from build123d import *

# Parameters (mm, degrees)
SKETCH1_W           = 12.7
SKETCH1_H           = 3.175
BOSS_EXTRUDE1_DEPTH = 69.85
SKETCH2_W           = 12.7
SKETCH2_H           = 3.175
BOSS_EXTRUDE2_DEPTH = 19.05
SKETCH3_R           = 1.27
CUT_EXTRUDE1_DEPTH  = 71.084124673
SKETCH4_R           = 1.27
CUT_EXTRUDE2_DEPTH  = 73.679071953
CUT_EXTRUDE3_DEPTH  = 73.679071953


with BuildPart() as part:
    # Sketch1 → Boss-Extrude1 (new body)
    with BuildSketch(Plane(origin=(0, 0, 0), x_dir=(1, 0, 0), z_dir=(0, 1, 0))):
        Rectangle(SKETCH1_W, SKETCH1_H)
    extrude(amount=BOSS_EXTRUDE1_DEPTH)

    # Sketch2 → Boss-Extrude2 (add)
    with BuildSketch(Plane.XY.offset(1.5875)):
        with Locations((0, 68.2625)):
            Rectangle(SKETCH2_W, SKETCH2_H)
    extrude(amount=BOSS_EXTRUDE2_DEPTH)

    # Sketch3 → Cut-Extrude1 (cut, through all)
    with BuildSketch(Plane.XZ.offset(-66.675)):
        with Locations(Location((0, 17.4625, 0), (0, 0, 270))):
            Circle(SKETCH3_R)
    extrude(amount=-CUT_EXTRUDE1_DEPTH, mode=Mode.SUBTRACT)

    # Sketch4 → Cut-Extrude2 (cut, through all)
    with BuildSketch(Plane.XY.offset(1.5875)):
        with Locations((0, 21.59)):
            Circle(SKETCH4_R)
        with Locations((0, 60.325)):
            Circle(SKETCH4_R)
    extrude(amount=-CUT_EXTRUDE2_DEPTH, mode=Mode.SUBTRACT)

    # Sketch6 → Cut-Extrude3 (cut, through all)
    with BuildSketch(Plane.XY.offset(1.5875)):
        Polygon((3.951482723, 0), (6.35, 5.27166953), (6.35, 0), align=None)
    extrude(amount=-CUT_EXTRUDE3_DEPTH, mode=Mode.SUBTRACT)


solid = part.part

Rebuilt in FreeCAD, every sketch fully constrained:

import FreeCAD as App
import Part
import Sketcher

V = App.Vector
Q = App.Units.Quantity


def add_polygon(sketch, points):
    """Adds a closed chain of lines whose ends are joined by coincident constraints."""
    first, n = sketch.GeometryCount, len(points)
    for a, b in zip(points, points[1:] + points[:1]):
        sketch.addGeometry(Part.LineSegment(App.Vector(*a, 0), App.Vector(*b, 0)), False)
    for i in range(n):
        sketch.addConstraint(Sketcher.Constraint("Coincident", first + i, 2, first + (i + 1) % n, 1))

doc = App.newDocument("Part")
body = doc.addObject("PartDesign::Body", "Body")

# Sketch on XZ plane
sketch1 = body.newObject("Sketcher::SketchObject", "Sketch")
sketch1.AttachmentSupport = (doc.getObject("XZ_Plane"), [""])
sketch1.MapMode = "FlatFace"
add_polygon(sketch1, [(-6.3, -1.6), (-6.3, 1.6), (6.3, 1.6), (6.3, -1.6)])  # lines 0-3
sketch1.addConstraint([
    Sketcher.Constraint("Vertical", 0),
    Sketcher.Constraint("Horizontal", 1),
    Sketcher.Constraint("Vertical", 2),
    Sketcher.Constraint("Horizontal", 3),
    Sketcher.Constraint("Symmetric", 0, 2, 2, 2, -1, 1),
    Sketcher.Constraint("DistanceX", 1, 1, 1, 2, Q("0.5 in")),
    Sketcher.Constraint("DistanceY", 0, 1, 0, 2, Q("0.125 in")),
])
pad1 = body.newObject("PartDesign::Pad", "Pad")
pad1.Profile = sketch1
pad1.Length = Q("2.75 in")
pad1.Reversed = True

# Sketch on XY plane
sketch2 = body.newObject("Sketcher::SketchObject", "Sketch001")
sketch2.AttachmentSupport = (doc.getObject("XY_Plane"), [""])
sketch2.MapMode = "FlatFace"
sketch2.AttachmentOffset = App.Placement(V(0, 0, 0.0625 * 25.4), App.Rotation())
add_polygon(sketch2, [(-6.3, 69.8), (-6.3, 66.7), (6.3, 66.7), (6.3, 69.8)])  # lines 0-3
sketch2.addConstraint([
    Sketcher.Constraint("Vertical", 0),
    Sketcher.Constraint("Horizontal", 1),
    Sketcher.Constraint("Vertical", 2),
    Sketcher.Constraint("Horizontal", 3),
    Sketcher.Constraint("DistanceX", 1, 1, 1, 2, Q("0.5 in")),
    Sketcher.Constraint("DistanceY", 0, 2, 0, 1, Q("0.125 in")),
    Sketcher.Constraint("DistanceX", 0, 2, -1, 1, Q("0.25 in")),
    Sketcher.Constraint("DistanceY", -1, 1, 2, 2, Q("2.75 in")),
])
pad2 = body.newObject("PartDesign::Pad", "Pad001")
pad2.Profile = sketch2
pad2.Length = Q("0.75 in")

# Sketch on XZ plane
sketch3 = body.newObject("Sketcher::SketchObject", "Sketch002")
sketch3.AttachmentSupport = (doc.getObject("XZ_Plane"), [""])
sketch3.MapMode = "FlatFace"
sketch3.AttachmentOffset = App.Placement(V(0, 0, -2.625 * 25.4), App.Rotation())
sketch3.addGeometry(Part.Circle(V(0, 17.5, 0), V(0, 0, 1), 1.3), False)
sketch3.addConstraint([
    Sketcher.Constraint("PointOnObject", 0, 3, -2),
    Sketcher.Constraint("Diameter", 0, Q("0.1 in")),
    Sketcher.Constraint("DistanceY", -1, 1, 0, 3, Q("0.6875 in")),
])
pocket1 = body.newObject("PartDesign::Pocket", "Pocket")
pocket1.Profile = sketch3
pocket1.Type = "ThroughAll"

# Sketch on XY plane
sketch4 = body.newObject("Sketcher::SketchObject", "Sketch003")
sketch4.AttachmentSupport = (doc.getObject("XY_Plane"), [""])
sketch4.MapMode = "FlatFace"
sketch4.AttachmentOffset = App.Placement(V(0, 0, 0.0625 * 25.4), App.Rotation())
sketch4.addGeometry([
    Part.Circle(V(0, 21.6, 0), V(0, 0, 1), 1.3),
    Part.Circle(V(0, 60.3, 0), V(0, 0, 1), 1.3),
], False)
sketch4.addConstraint([
    Sketcher.Constraint("Equal", 0, 1),
    Sketcher.Constraint("PointOnObject", 0, 3, -2),
    Sketcher.Constraint("PointOnObject", 1, 3, -2),
    Sketcher.Constraint("Diameter", 0, Q("0.1 in")),
    Sketcher.Constraint("DistanceY", -1, 1, 0, 3, Q("0.85 in")),
    Sketcher.Constraint("DistanceY", -1, 1, 1, 3, Q("2.375 in")),
])
pocket2 = body.newObject("PartDesign::Pocket", "Pocket001")
pocket2.Profile = sketch4
pocket2.Type = "ThroughAll"

# Sketch on XY plane
sketch5 = body.newObject("Sketcher::SketchObject", "Sketch004")
sketch5.AttachmentSupport = (doc.getObject("XY_Plane"), [""])
sketch5.MapMode = "FlatFace"
sketch5.AttachmentOffset = App.Placement(V(0, 0, 0.0625 * 25.4), App.Rotation())
add_polygon(sketch5, [(6.3, 5.3), (4, 0), (6.3, 0)])  # lines 0-2
sketch5.addConstraint([
    Sketcher.Constraint("Horizontal", 1),
    Sketcher.Constraint("Vertical", 2),
    Sketcher.Constraint("PointOnObject", 0, 2, -1),
    Sketcher.Constraint("DistanceX", -1, 1, 1, 2, Q("0.25 in")),
    Sketcher.Constraint("DistanceY", 2, 1, 2, 2, Q("5.27167 mm")),
    Sketcher.Constraint("DistanceX", 1, 1, 1, 2, Q("2.398517 mm")),
])
pocket3 = body.newObject("PartDesign::Pocket", "Pocket002")
pocket3.Profile = sketch5
pocket3.Type = "ThroughAll"

doc.recompute()
